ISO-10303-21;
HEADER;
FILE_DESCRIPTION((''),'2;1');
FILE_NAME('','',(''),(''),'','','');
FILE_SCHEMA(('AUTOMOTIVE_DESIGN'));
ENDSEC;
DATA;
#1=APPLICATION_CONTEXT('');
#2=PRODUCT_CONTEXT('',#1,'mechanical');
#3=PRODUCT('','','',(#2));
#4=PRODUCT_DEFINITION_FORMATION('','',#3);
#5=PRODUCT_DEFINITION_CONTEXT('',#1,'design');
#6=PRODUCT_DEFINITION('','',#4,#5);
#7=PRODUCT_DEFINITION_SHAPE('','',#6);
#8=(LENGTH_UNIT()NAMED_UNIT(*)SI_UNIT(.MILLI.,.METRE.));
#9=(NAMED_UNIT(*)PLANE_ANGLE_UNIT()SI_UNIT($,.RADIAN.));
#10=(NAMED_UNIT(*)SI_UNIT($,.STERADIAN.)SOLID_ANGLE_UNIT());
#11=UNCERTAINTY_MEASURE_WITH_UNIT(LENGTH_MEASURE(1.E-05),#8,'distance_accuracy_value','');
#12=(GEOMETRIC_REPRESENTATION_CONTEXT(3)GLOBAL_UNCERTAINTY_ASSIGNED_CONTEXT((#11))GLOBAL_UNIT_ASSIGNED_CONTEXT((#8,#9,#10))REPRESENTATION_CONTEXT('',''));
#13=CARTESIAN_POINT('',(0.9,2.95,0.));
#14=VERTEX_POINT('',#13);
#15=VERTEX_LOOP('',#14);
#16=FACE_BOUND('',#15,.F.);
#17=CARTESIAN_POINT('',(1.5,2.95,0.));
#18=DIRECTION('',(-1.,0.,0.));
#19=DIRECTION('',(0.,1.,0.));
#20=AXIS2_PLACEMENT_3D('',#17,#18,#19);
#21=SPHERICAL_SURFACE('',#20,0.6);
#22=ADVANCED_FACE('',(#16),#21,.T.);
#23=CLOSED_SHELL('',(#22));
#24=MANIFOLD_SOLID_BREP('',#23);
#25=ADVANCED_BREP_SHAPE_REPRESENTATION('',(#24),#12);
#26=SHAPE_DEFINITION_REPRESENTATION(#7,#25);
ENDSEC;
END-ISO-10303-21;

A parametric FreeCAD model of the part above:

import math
import FreeCAD as App
import Part
import Sketcher
from FreeCAD import Vector

doc = App.newDocument("Part")
body = doc.addObject("PartDesign::Body", "Body")

sketch1 = doc.addObject("Sketcher::SketchObject", "Sketch")
body.addObject(sketch1)
sketch1.AttachmentSupport = (doc.XY_Plane, [""])
sketch1.MapMode = "FlatFace"
sketch1.addGeometry([
    Part.LineSegment(Vector(0.9, 3, 0), Vector(2.1, 3, 0)),
    Part.ArcOfCircle(Part.Circle(Vector(1.5, 3, 0), Vector(0, 0, 1), 0.6), math.radians(0), math.radians(180)),
], False)
sketch1.addGeometry(Part.LineSegment(Vector(0.9, 3, 0), Vector(2.1, 3, 0)), True)
sketch1.addConstraint([
    Sketcher.Constraint("Coincident", 0, 1, 1, 2),
    Sketcher.Constraint("Coincident", 1, 1, 0, 2),
    Sketcher.Constraint("Horizontal", 0),
    Sketcher.Constraint("Horizontal", 2),
    Sketcher.Constraint("Coincident", 2, 1, 0, 1),
    Sketcher.Constraint("Horizontal", 1, 3, 0, 1),
    Sketcher.Constraint("Equal", 0, 2),
    Sketcher.Constraint("Radius", 1, 0.6),
    Sketcher.Constraint("DistanceX", -1, 1, 1, 3, 1.5),
    Sketcher.Constraint("DistanceY", -1, 1, 1, 3, 2.95),
])
revolution = doc.addObject("PartDesign::Revolution", "Revolution")
body.addObject(revolution)
revolution.Profile = sketch1
revolution.ReferenceAxis = (sketch1, ["Axis0"])
revolution.Angle = 360

doc.recompute()
